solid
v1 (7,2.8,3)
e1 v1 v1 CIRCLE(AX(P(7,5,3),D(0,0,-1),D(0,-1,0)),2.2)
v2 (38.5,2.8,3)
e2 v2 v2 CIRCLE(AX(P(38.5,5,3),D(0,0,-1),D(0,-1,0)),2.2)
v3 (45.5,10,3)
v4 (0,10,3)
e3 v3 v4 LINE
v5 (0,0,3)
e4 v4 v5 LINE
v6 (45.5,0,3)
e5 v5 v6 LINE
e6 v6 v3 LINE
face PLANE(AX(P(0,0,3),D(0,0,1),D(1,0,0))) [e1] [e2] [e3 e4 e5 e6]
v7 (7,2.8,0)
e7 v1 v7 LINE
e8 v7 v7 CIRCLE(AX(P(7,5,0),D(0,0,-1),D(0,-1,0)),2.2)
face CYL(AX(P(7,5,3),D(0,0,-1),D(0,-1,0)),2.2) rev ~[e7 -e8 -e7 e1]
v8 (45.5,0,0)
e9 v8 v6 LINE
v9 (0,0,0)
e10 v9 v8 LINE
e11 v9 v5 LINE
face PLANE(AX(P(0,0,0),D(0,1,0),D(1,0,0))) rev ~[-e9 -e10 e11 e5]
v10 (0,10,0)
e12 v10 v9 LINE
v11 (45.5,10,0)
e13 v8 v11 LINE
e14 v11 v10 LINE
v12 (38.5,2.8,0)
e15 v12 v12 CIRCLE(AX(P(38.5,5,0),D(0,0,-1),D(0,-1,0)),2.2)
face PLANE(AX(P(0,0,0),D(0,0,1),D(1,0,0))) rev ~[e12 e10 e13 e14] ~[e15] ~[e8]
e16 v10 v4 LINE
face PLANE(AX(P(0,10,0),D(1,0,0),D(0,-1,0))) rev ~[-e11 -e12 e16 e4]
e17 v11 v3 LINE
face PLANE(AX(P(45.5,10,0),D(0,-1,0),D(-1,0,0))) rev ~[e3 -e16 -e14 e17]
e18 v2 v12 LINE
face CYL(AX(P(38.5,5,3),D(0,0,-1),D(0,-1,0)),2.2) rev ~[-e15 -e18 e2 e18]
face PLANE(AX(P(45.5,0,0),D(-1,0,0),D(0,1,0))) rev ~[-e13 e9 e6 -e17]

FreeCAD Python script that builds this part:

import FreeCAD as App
import Part
import Sketcher

doc = App.newDocument("Part")
body = doc.addObject("PartDesign::Body", "Body")

sketch1 = body.newObject("Sketcher::SketchObject", "Sketch")
sketch1.AttachmentSupport = (doc.getObject("XY_Plane"), [""])
sketch1.MapMode = "FlatFace"
sketch1.addGeometry(Part.LineSegment(App.Vector(0, 10, 0), App.Vector(0, 0, 0)), False)
sketch1.addGeometry(Part.LineSegment(App.Vector(0, 0, 0), App.Vector(46, 0, 0)), False)
sketch1.addGeometry(Part.LineSegment(App.Vector(46, 0, 0), App.Vector(46, 10, 0)), False)
sketch1.addGeometry(Part.LineSegment(App.Vector(46, 10, 0), App.Vector(0, 10, 0)), False)
sketch1.addConstraint(Sketcher.Constraint("Coincident", 0, 2, 1, 1))
sketch1.addConstraint(Sketcher.Constraint("Coincident", 1, 2, 2, 1))
sketch1.addConstraint(Sketcher.Constraint("Coincident", 2, 2, 3, 1))
sketch1.addConstraint(Sketcher.Constraint("Coincident", 3, 2, 0, 1))
sketch1.addConstraint(Sketcher.Constraint("Vertical", 0))
sketch1.addConstraint(Sketcher.Constraint("Horizontal", 1))
sketch1.addConstraint(Sketcher.Constraint("Vertical", 2))
sketch1.addConstraint(Sketcher.Constraint("Horizontal", 3))
sketch1.addConstraint(Sketcher.Constraint("Coincident", 0, 2, -1, 1))
sketch1.addConstraint(Sketcher.Constraint("DistanceY", 0, 2, 0, 1, 10.0))
sketch1.addConstraint(Sketcher.Constraint("DistanceX", 1, 1, 1, 2, 45.5))
pad1 = body.newObject("PartDesign::Pad", "Pad")
pad1.Profile = sketch1
pad1.Length = 3

sketch2 = body.newObject("Sketcher::SketchObject", "Sketch001")
sketch2.AttachmentSupport = (doc.getObject("XY_Plane"), [""])
sketch2.MapMode = "FlatFace"
sketch2.AttachmentOffset = App.Placement(App.Vector(0, 0, 3), App.Rotation())
sketch2.addGeometry(Part.Circle(App.Vector(7, 5, 0), App.Vector(0, 0, 1), 2.2), False)
sketch2.addGeometry(Part.Circle(App.Vector(38.5, 5, 0), App.Vector(0, 0, 1), 2.2), False)
sketch2.addConstraint(Sketcher.Constraint("Equal", 0, 1))
sketch2.addConstraint(Sketcher.Constraint("Horizontal", 0, 3, 1, 3))
sketch2.addConstraint(Sketcher.Constraint("Diameter", 0, 4.4))
sketch2.addConstraint(Sketcher.Constraint("DistanceX", -1, 1, 0, 3, 7.0))
sketch2.addConstraint(Sketcher.Constraint("DistanceY", -1, 1, 0, 3, 5.0))
sketch2.addConstraint(Sketcher.Constraint("DistanceX", -1, 1, 1, 3, 38.5))
doc.recompute()
hole = body.newObject("PartDesign::Hole", "Hole")
hole.Profile = sketch2
hole.ThreadType = "None"
hole.Diameter = 4.4
hole.DepthType = "ThroughAll"

doc.recompute()
